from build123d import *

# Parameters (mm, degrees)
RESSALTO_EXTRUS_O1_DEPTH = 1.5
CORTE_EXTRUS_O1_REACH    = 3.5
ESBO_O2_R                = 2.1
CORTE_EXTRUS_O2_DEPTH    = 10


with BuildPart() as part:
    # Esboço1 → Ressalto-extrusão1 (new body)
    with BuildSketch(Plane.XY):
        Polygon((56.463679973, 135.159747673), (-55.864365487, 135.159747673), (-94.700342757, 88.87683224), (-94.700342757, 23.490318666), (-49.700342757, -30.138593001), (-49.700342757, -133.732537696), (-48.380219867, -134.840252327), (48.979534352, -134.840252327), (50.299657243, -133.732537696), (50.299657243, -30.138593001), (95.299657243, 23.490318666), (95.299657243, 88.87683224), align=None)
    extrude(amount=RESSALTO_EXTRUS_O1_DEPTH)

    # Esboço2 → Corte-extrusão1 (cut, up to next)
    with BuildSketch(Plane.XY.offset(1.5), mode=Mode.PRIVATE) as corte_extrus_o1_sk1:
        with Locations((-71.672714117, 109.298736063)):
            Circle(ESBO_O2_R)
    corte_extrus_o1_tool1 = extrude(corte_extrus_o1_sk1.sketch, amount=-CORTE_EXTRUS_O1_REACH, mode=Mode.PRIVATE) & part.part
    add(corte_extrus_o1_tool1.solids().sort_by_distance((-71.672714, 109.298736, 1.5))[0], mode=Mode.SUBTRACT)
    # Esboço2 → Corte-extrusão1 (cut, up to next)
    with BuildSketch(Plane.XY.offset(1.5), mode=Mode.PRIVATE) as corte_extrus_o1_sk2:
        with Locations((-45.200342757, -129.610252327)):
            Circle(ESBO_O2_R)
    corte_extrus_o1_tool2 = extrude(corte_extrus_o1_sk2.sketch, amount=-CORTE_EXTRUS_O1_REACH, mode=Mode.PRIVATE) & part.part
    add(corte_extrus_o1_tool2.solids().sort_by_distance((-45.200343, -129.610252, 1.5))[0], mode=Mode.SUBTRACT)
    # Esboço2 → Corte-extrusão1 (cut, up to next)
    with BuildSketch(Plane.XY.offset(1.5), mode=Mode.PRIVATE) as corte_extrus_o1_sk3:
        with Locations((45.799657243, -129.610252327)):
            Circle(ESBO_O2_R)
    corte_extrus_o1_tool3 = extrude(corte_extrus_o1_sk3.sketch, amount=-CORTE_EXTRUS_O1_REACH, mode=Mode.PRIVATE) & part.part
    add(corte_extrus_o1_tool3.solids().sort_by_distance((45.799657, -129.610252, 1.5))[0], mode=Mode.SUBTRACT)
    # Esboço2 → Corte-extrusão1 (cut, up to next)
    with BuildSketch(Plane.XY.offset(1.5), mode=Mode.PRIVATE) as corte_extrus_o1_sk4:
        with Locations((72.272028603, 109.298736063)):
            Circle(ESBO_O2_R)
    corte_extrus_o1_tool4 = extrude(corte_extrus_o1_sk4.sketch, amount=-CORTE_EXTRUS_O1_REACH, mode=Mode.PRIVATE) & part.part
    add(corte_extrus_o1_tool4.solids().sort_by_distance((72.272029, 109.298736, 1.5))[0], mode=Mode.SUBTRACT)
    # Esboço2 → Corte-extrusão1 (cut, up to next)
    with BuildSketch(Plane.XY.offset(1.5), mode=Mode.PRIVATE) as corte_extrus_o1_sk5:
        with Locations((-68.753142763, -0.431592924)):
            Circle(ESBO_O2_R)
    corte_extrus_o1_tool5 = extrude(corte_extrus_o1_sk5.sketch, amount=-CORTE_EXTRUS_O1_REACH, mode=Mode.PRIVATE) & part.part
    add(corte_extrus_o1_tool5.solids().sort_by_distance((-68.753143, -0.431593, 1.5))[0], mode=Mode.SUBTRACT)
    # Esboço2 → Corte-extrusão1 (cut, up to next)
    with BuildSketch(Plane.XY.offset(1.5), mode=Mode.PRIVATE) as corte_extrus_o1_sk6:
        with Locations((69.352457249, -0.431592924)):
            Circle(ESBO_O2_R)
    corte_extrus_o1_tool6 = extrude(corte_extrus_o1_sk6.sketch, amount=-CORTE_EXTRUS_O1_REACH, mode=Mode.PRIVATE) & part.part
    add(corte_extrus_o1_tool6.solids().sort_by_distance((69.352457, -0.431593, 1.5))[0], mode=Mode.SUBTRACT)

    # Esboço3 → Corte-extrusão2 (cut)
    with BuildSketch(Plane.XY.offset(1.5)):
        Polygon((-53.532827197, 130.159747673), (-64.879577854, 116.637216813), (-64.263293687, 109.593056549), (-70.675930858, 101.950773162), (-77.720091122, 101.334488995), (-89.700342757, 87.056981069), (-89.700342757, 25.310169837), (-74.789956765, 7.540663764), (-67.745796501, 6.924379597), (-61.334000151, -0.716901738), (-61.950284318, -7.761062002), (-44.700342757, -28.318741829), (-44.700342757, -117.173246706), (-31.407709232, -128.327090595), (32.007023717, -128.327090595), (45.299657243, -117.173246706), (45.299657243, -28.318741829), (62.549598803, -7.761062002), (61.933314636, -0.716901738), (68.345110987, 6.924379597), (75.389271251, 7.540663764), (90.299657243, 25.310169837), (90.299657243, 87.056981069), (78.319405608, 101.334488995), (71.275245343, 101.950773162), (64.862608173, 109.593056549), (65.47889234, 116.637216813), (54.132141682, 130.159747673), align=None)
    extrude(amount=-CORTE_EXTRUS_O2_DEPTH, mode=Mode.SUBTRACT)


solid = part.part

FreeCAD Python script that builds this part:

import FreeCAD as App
import Part
import Sketcher
Q = App.Units.Quantity


def add_polygon(sketch, points):
    """Adds a closed chain of lines whose ends are joined by coincident constraints."""
    first, n = sketch.GeometryCount, len(points)
    for a, b in zip(points, points[1:] + points[:1]):
        sketch.addGeometry(Part.LineSegment(App.Vector(*a, 0), App.Vector(*b, 0)), False)
    for i in range(n):
        sketch.addConstraint(Sketcher.Constraint("Coincident", first + i, 2, first + (i + 1) % n, 1))

doc = App.newDocument("Part")
params = doc.addObject("Spreadsheet::Sheet", "Params")
for row, (alias, value) in enumerate([
    ("pad1_length", "1.5 mm"),
    ("sketch2_diameter", "4.2 mm"),
    ("sketch3_diameter", "4.2 mm"),
    ("sketch4_diameter", "4.2 mm"),
    ("sketch5_diameter", "4.2 mm"),
    ("sketch6_diameter", "4.2 mm"),
    ("sketch7_diameter", "4.2 mm"),
    ("pocket7_length", "10 mm"),
], start=1):
    params.set(f"A{row}", alias)
    params.set(f"B{row}", "=" + value)
    params.setAlias(f"B{row}", alias)

body = doc.addObject("PartDesign::Body", "Body")

sketch1 = body.newObject("Sketcher::SketchObject", "Sketch")
sketch1.AttachmentSupport = (doc.getObject("XY_Plane"), [""])
sketch1.MapMode = "FlatFace"
add_polygon(sketch1, [(56.5, 135.2), (-55.9, 135.2), (-94.7, 88.9), (-94.7, 23.5), (-49.7, -30.1), (-49.7, -133.7), (-48.4, -134.8), (49, -134.8), (50.3, -133.7), (50.3, -30.1), (95.3, 23.5), (95.3, 88.9)])
sketch1.addConstraint([
    Sketcher.Constraint("Horizontal", 0),
    Sketcher.Constraint("Vertical", 2),
    Sketcher.Constraint("Vertical", 4),
    Sketcher.Constraint("Horizontal", 6),
    Sketcher.Constraint("Vertical", 8),
    Sketcher.Constraint("Vertical", 10),
    Sketcher.Constraint("Perpendicular", 1, 5),
    Sketcher.Constraint("Perpendicular", 3, 7),
    Sketcher.Constraint("Perpendicular", 5, 9),
    Sketcher.Constraint("Perpendicular", 7, 11),
    Sketcher.Constraint("Horizontal", 4, 2, 7, 2),
    Sketcher.Constraint("Horizontal", 3, 2, 8, 2),
    Sketcher.Constraint("Horizontal", 2, 2, 9, 2),
    Sketcher.Constraint("Horizontal", 1, 2, 10, 2),
    Sketcher.Constraint("Equal", 5, 7),
    Sketcher.Constraint("Angle", 1, Q("-130 deg")),
    Sketcher.Constraint("DistanceX", 2, 2, 3, 2, 45.0),
    Sketcher.Constraint("DistanceY", 5, 2, 0, 2, 270.0),
    Sketcher.Constraint("DistanceX", 4, 2, 7, 2, 100.0),
    Sketcher.Constraint("Distance", 5, 1.723298),
    Sketcher.Constraint("DistanceX", 0, 2, 0, 1, 112.328045),
    Sketcher.Constraint("DistanceY", 2, 2, 2, 1, 65.386514),
    Sketcher.Constraint("DistanceY", -1, 1, 2, 2, 23.490319),
    Sketcher.Constraint("DistanceX", 5, 2, -1, 1, 48.38022),
])
pad1 = body.newObject("PartDesign::Pad", "Pad")
pad1.Profile = sketch1
pad1.setExpression("Length", "Params.pad1_length")

sketch2 = body.newObject("Sketcher::SketchObject", "Sketch001")
sketch2.AttachmentSupport = (doc.getObject("XY_Plane"), [""])
sketch2.MapMode = "FlatFace"
sketch2.AttachmentOffset = App.Placement(App.Vector(0, 0, 1.5), App.Rotation())
sketch2.addGeometry(Part.Circle(App.Vector(-71.7, 109.3, 0), App.Vector(0, 0, 1), 2.1), False)
sketch2.addConstraint([
    Sketcher.Constraint("Diameter", 0, 4.2),
    Sketcher.Constraint("DistanceX", 0, 3, -1, 1, 71.672714),
    Sketcher.Constraint("DistanceY", -1, 1, 0, 3, 109.298736),
])
sketch2.setExpression("Constraints[0]", "Params.sketch2_diameter")
pocket1 = body.newObject("PartDesign::Pocket", "Pocket")
pocket1.Profile = sketch2
pocket1.Type = "UpToFirst"

sketch3 = body.newObject("Sketcher::SketchObject", "Sketch002")
sketch3.AttachmentSupport = (doc.getObject("XY_Plane"), [""])
sketch3.MapMode = "FlatFace"
sketch3.AttachmentOffset = App.Placement(App.Vector(0, 0, 1.5), App.Rotation())
sketch3.addGeometry(Part.Circle(App.Vector(-45.2, -129.6, 0), App.Vector(0, 0, 1), 2.1), False)
sketch3.addConstraint([
    Sketcher.Constraint("Diameter", 0, 4.2),
    Sketcher.Constraint("DistanceX", 0, 3, -1, 1, 45.200343),
    Sketcher.Constraint("DistanceY", 0, 3, -1, 1, 129.610252),
])
sketch3.setExpression("Constraints[0]", "Params.sketch3_diameter")
pocket2 = body.newObject("PartDesign::Pocket", "Pocket001")
pocket2.Profile = sketch3
pocket2.Type = "UpToFirst"

sketch4 = body.newObject("Sketcher::SketchObject", "Sketch003")
sketch4.AttachmentSupport = (doc.getObject("XY_Plane"), [""])
sketch4.MapMode = "FlatFace"
sketch4.AttachmentOffset = App.Placement(App.Vector(0, 0, 1.5), App.Rotation())
sketch4.addGeometry(Part.Circle(App.Vector(45.8, -129.6, 0), App.Vector(0, 0, 1), 2.1), False)
sketch4.addConstraint([
    Sketcher.Constraint("Diameter", 0, 4.2),
    Sketcher.Constraint("DistanceX", -1, 1, 0, 3, 45.799657),
    Sketcher.Constraint("DistanceY", 0, 3, -1, 1, 129.610252),
])
sketch4.setExpression("Constraints[0]", "Params.sketch4_diameter")
pocket3 = body.newObject("PartDesign::Pocket", "Pocket002")
pocket3.Profile = sketch4
pocket3.Type = "UpToFirst"

sketch5 = body.newObject("Sketcher::SketchObject", "Sketch004")
sketch5.AttachmentSupport = (doc.getObject("XY_Plane"), [""])
sketch5.MapMode = "FlatFace"
sketch5.AttachmentOffset = App.Placement(App.Vector(0, 0, 1.5), App.Rotation())
sketch5.addGeometry(Part.Circle(App.Vector(72.3, 109.3, 0), App.Vector(0, 0, 1), 2.1), False)
sketch5.addConstraint([
    Sketcher.Constraint("Diameter", 0, 4.2),
    Sketcher.Constraint("DistanceX", -1, 1, 0, 3, 72.272029),
    Sketcher.Constraint("DistanceY", -1, 1, 0, 3, 109.298736),
])
sketch5.setExpression("Constraints[0]", "Params.sketch5_diameter")
pocket4 = body.newObject("PartDesign::Pocket", "Pocket003")
pocket4.Profile = sketch5
pocket4.Type = "UpToFirst"

sketch6 = body.newObject("Sketcher::SketchObject", "Sketch005")
sketch6.AttachmentSupport = (doc.getObject("XY_Plane"), [""])
sketch6.MapMode = "FlatFace"
sketch6.AttachmentOffset = App.Placement(App.Vector(0, 0, 1.5), App.Rotation())
sketch6.addGeometry(Part.Circle(App.Vector(-68.8, -0.4, 0), App.Vector(0, 0, 1), 2.1), False)
sketch6.addConstraint([
    Sketcher.Constraint("Diameter", 0, 4.2),
    Sketcher.Constraint("DistanceX", 0, 3, -1, 1, 68.753143),
    Sketcher.Constraint("DistanceY", 0, 3, -1, 1, 0.431593),
])
sketch6.setExpression("Constraints[0]", "Params.sketch6_diameter")
pocket5 = body.newObject("PartDesign::Pocket", "Pocket004")
pocket5.Profile = sketch6
pocket5.Type = "UpToFirst"

sketch7 = body.newObject("Sketcher::SketchObject", "Sketch006")
sketch7.AttachmentSupport = (doc.getObject("XY_Plane"), [""])
sketch7.MapMode = "FlatFace"
sketch7.AttachmentOffset = App.Placement(App.Vector(0, 0, 1.5), App.Rotation())
sketch7.addGeometry(Part.Circle(App.Vector(69.4, -0.4, 0), App.Vector(0, 0, 1), 2.1), False)
sketch7.addConstraint([
    Sketcher.Constraint("Diameter", 0, 4.2),
    Sketcher.Constraint("DistanceX", -1, 1, 0, 3, 69.352457),
    Sketcher.Constraint("DistanceY", 0, 3, -1, 1, 0.431593),
])
sketch7.setExpression("Constraints[0]", "Params.sketch7_diameter")
pocket6 = body.newObject("PartDesign::Pocket", "Pocket005")
pocket6.Profile = sketch7
pocket6.Type = "UpToFirst"

sketch8 = body.newObject("Sketcher::SketchObject", "Sketch007")
sketch8.AttachmentSupport = (doc.getObject("XY_Plane"), [""])
sketch8.MapMode = "FlatFace"
sketch8.AttachmentOffset = App.Placement(App.Vector(0, 0, 1.5), App.Rotation())
add_polygon(sketch8, [(-54, 130), (-65, 117), (-64, 110), (-71, 102), (-78, 101), (-90, 87), (-90, 25), (-75, 8), (-68, 7), (-61, -1), (-62, -8), (-45, -28), (-45, -117), (-31, -128), (32, -128), (45, -117), (45, -28), (63, -8), (62, -1), (68, 7), (75, 8), (90, 25), (90, 87), (78, 101), (71, 102), (65, 110), (65, 117), (54, 130)])
sketch8.addConstraint([
    Sketcher.Constraint("Vertical", 5),
    Sketcher.Constraint("Vertical", 11),
    Sketcher.Constraint("Horizontal", 13),
    Sketcher.Constraint("Vertical", 15),
    Sketcher.Constraint("Vertical", 21),
    Sketcher.Constraint("Horizontal", 27),
    Sketcher.Constraint("Parallel", 0, 2),
    Sketcher.Constraint("Perpendicular", 1, 3),
    Sketcher.Constraint("Parallel", 2, 4),
    Sketcher.Constraint("Parallel", 6, 8),
    Sketcher.Constraint("Perpendicular", 7, 9),
    Sketcher.Constraint("Parallel", 8, 10),
    Sketcher.Constraint("Perpendicular", 4, 12),
    Sketcher.Constraint("Perpendicular", 10, 14),
    Sketcher.Constraint("Perpendicular", 12, 16),
    Sketcher.Constraint("Perpendicular", 3, 17),
    Sketcher.Constraint("Parallel", 16, 18),
    Sketcher.Constraint("Perpendicular", 17, 19),
    Sketcher.Constraint("Parallel", 18, 20),
    Sketcher.Constraint("Perpendicular", 14, 22),
    Sketcher.Constraint("Perpendicular", 9, 23),
    Sketcher.Constraint("Parallel", 22, 24),
    Sketcher.Constraint("Perpendicular", 23, 25),
    Sketcher.Constraint("Parallel", 24, 26),
    Sketcher.Constraint("Horizontal", 11, 2, 14, 2),
    Sketcher.Constraint("Horizontal", 10, 2, 15, 2),
    Sketcher.Constraint("Horizontal", 9, 2, 16, 2),
    Sketcher.Constraint("Horizontal", 8, 2, 17, 2),
    Sketcher.Constraint("Horizontal", 7, 2, 18, 2),
    Sketcher.Constraint("Horizontal", 6, 2, 19, 2),
    Sketcher.Constraint("Horizontal", 5, 2, 20, 2),
    Sketcher.Constraint("Horizontal", 4, 2, 21, 2),
    Sketcher.Constraint("Horizontal", 3, 2, 22, 2),
    Sketcher.Constraint("Horizontal", 2, 2, 23, 2),
    Sketcher.Constraint("Horizontal", 1, 2, 24, 2),
    Sketcher.Constraint("Horizontal", 0, 2, 25, 2),
    Sketcher.Constraint("Equal", 1, 3),
    Sketcher.Constraint("Equal", 3, 7),
    Sketcher.Constraint("Equal", 7, 9),
    Sketcher.Constraint("Equal", 12, 14),
    Sketcher.Constraint("Equal", 17, 19),
    Sketcher.Constraint("Angle", 0, Q("-130 deg")),
    Sketcher.Constraint("Angle", 1, Q("-85 deg")),
    Sketcher.Constraint("DistanceX", 5, 2, 10, 2, 45.0),
    Sketcher.Constraint("DistanceX", 11, 2, 14, 2, 90.0),
    Sketcher.Constraint("DistanceX", 8, 2, -1, 1, 61.334),
    Sketcher.Constraint("Distance", 12, 17.352301),
    Sketcher.Constraint("DistanceX", 27, 2, 27, 1, 107.664969),
    Sketcher.Constraint("DistanceY", 5, 2, 5, 1, 61.746811),
    Sketcher.Constraint("DistanceY", 8, 2, -1, 1, 0.716902),
    Sketcher.Constraint("DistanceX", -1, 1, 16, 2, 62.549599),
    Sketcher.Constraint("DistanceY", 7, 2, 4, 2, 80.132601),
    Sketcher.Constraint("Distance", 0, 17.65241),
    Sketcher.Constraint("DistanceY", 11, 2, 11, 1, 88.854505),
    Sketcher.Constraint("DistanceX", 2, 2, -1, 1, 70.675931),
    Sketcher.Constraint("DistanceX", 3, 2, -1, 1, 77.720091),
])
pocket7 = body.newObject("PartDesign::Pocket", "Pocket006")
pocket7.Profile = sketch8
pocket7.setExpression("Length", "Params.pocket7_length")

doc.recompute()
